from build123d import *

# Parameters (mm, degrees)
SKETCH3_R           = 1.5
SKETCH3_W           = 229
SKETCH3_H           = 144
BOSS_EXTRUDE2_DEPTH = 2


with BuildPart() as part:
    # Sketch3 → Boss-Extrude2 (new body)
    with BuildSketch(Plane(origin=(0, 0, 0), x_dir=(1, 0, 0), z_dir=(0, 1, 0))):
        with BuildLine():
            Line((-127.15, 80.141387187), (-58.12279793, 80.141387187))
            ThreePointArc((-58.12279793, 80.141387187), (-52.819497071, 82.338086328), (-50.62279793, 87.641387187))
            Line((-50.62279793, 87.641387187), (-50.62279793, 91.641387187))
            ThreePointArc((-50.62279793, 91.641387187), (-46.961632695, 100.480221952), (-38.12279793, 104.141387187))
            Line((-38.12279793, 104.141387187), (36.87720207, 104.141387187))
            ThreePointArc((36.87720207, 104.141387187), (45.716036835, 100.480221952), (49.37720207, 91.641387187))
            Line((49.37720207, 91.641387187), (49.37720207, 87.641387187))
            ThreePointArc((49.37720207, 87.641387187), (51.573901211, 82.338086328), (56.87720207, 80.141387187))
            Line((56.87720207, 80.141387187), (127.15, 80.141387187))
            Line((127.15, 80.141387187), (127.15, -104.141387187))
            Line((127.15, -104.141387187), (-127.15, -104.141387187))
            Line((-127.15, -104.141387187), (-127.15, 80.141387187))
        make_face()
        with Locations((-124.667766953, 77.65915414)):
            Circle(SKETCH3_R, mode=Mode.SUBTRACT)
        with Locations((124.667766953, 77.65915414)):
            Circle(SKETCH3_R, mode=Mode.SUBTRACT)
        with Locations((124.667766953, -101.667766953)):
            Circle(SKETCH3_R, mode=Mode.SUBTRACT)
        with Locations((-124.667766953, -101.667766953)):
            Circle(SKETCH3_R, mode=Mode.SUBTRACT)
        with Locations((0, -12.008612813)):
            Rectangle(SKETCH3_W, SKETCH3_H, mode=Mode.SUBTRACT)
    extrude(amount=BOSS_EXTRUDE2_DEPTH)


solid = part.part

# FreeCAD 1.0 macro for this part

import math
import FreeCAD as App
import Part
import Sketcher
from FreeCAD import Vector
Q = App.Units.Quantity


def add_polygon(sketch, points):
    """Adds a closed chain of lines whose ends are joined by coincident constraints."""
    first, n = sketch.GeometryCount, len(points)
    for a, b in zip(points, points[1:] + points[:1]):
        sketch.addGeometry(Part.LineSegment(App.Vector(*a, 0), App.Vector(*b, 0)), False)
    for i in range(n):
        sketch.addConstraint(Sketcher.Constraint("Coincident", first + i, 2, first + (i + 1) % n, 1))

doc = App.newDocument("Part")
body = doc.addObject("PartDesign::Body", "Body")

# Sketch on XZ plane
sketch1 = body.newObject("Sketcher::SketchObject", "Sketch")
sketch1.AttachmentSupport = (doc.getObject("XZ_Plane"), [""])
sketch1.MapMode = "FlatFace"
sketch1.addGeometry(Part.LineSegment(Vector(-58.1, -80.1, 0), Vector(-127.2, -80.1, 0)), False)  # 0
sketch1.addGeometry(Part.LineSegment(Vector(-127.2, -80.1, 0), Vector(-127.2, 104.1, 0)), False)  # 1
sketch1.addGeometry(Part.LineSegment(Vector(-127.2, 104.1, 0), Vector(127.2, 104.1, 0)), False)  # 2
sketch1.addGeometry(Part.LineSegment(Vector(127.2, 104.1, 0), Vector(127.2, -80.1, 0)), False)  # 3
sketch1.addGeometry(Part.LineSegment(Vector(127.2, -80.1, 0), Vector(56.9, -80.1, 0)), False)  # 4
sketch1.addGeometry(Part.ArcOfCircle(Part.Circle(Vector(56.9, -87.6, 0), Vector(0, 0, 1), 7.5), math.radians(90), math.radians(180)), False)  # 5
sketch1.addGeometry(Part.LineSegment(Vector(49.4, -87.6, 0), Vector(49.4, -91.6, 0)), False)  # 6
sketch1.addGeometry(Part.ArcOfCircle(Part.Circle(Vector(36.9, -91.6, 0), Vector(0, 0, 1), 12.5), math.radians(-90), math.radians(0)), False)  # 7
sketch1.addGeometry(Part.LineSegment(Vector(36.9, -104.1, 0), Vector(-38.1, -104.1, 0)), False)  # 8
sketch1.addGeometry(Part.ArcOfCircle(Part.Circle(Vector(-38.1, -91.6, 0), Vector(0, 0, 1), 12.5), math.radians(180), math.radians(270)), False)  # 9
sketch1.addGeometry(Part.LineSegment(Vector(-50.6, -91.6, 0), Vector(-50.6, -87.6, 0)), False)  # 10
sketch1.addGeometry(Part.ArcOfCircle(Part.Circle(Vector(-58.1, -87.6, 0), Vector(0, 0, 1), 7.5), math.radians(0), math.radians(90)), False)  # 11
sketch1.addGeometry(Part.Circle(Vector(124.7, 101.7, 0), Vector(0, 0, 1), 1.5), False)  # 12
sketch1.addGeometry(Part.Circle(Vector(-124.7, 101.7, 0), Vector(0, 0, 1), 1.5), False)  # 13
add_polygon(sketch1, [(-114.5, 84), (-114.5, -60), (114.5, -60), (114.5, 84)])  # lines 14-17
sketch1.addGeometry(Part.Circle(Vector(124.7, -77.7, 0), Vector(0, 0, 1), 1.5), False)  # 18
sketch1.addGeometry(Part.Circle(Vector(-124.7, -77.7, 0), Vector(0, 0, 1), 1.5), False)  # 19
sketch1.addConstraint([
    Sketcher.Constraint("Coincident", 0, 2, 1, 1),
    Sketcher.Constraint("Coincident", 1, 2, 2, 1),
    Sketcher.Constraint("Coincident", 2, 2, 3, 1),
    Sketcher.Constraint("Coincident", 3, 2, 4, 1),
    Sketcher.Constraint("Tangent", 4, 2, 5, 1),
    Sketcher.Constraint("Tangent", 5, 2, 6, 1),
    Sketcher.Constraint("Tangent", 6, 2, 7, 2),
    Sketcher.Constraint("Tangent", 7, 1, 8, 1),
    Sketcher.Constraint("Tangent", 8, 2, 9, 2),
    Sketcher.Constraint("Tangent", 9, 1, 10, 1),
    Sketcher.Constraint("Tangent", 10, 2, 11, 1),
    Sketcher.Constraint("Tangent", 11, 2, 0, 1),
    Sketcher.Constraint("Horizontal", 0),
    Sketcher.Constraint("Vertical", 1),
    Sketcher.Constraint("Horizontal", 2),
    Sketcher.Constraint("Vertical", 3),
    Sketcher.Constraint("Horizontal", 4),
    Sketcher.Constraint("Vertical", 6),
    Sketcher.Constraint("Horizontal", 8),
    Sketcher.Constraint("Vertical", 10),
    Sketcher.Constraint("Vertical", 14),
    Sketcher.Constraint("Horizontal", 15),
    Sketcher.Constraint("Vertical", 16),
    Sketcher.Constraint("Horizontal", 17),
    Sketcher.Constraint("Equal", 7, 9),
    Sketcher.Constraint("Equal", 5, 11),
    Sketcher.Constraint("Equal", 12, 13),
    Sketcher.Constraint("Equal", 13, 18),
    Sketcher.Constraint("Equal", 18, 19),
    Sketcher.Constraint("Symmetric", 12, 3, 13, 3, -2),
    Sketcher.Constraint("Symmetric", 18, 3, 19, 3, -2),
    Sketcher.Constraint("Symmetric", 0, 2, 3, 2, -2),
    Sketcher.Constraint("Vertical", 12, 3, 18, 3),
    Sketcher.Constraint("Diameter", 12, Q("3 mm")),
    Sketcher.Constraint("Radius", 5, Q("7.5 mm")),
    Sketcher.Constraint("Radius", 7, Q("12.5 mm")),
    Sketcher.Constraint("DistanceX", 8, 2, 8, 1, Q("75 mm")),
    Sketcher.Constraint("DistanceX", 15, 1, 15, 2, Q("229 mm")),
    Sketcher.Constraint("DistanceY", 6, 2, 6, 1, Q("4 mm")),
    Sketcher.Constraint("DistanceY", 14, 2, 14, 1, Q("144 mm")),
    Sketcher.Constraint("DistanceX", 2, 1, 2, 2, Q("254.3 mm")),
    Sketcher.Constraint("DistanceX", 14, 2, -1, 1, Q("114.5 mm")),
    Sketcher.Constraint("DistanceY", 0, 2, 14, 2, Q("20.15 mm")),
    Sketcher.Constraint("DistanceX", 0, 2, 0, 1, Q("69.027202 mm")),
    Sketcher.Constraint("DistanceY", 1, 1, 1, 2, Q("184.282774 mm")),
    Sketcher.Constraint("DistanceX", 13, 3, 11, 3, Q("66.544969 mm")),
    Sketcher.Constraint("DistanceY", 18, 3, 12, 3, Q("179.326921 mm")),
    Sketcher.Constraint("DistanceY", 13, 3, 1, 2, Q("2.47362 mm")),
    Sketcher.Constraint("DistanceY", 5, 3, -1, 1, Q("87.641387 mm")),
])
pad1 = body.newObject("PartDesign::Pad", "Pad")
pad1.Profile = sketch1
pad1.Length = 2
pad1.Reversed = True

doc.recompute()
